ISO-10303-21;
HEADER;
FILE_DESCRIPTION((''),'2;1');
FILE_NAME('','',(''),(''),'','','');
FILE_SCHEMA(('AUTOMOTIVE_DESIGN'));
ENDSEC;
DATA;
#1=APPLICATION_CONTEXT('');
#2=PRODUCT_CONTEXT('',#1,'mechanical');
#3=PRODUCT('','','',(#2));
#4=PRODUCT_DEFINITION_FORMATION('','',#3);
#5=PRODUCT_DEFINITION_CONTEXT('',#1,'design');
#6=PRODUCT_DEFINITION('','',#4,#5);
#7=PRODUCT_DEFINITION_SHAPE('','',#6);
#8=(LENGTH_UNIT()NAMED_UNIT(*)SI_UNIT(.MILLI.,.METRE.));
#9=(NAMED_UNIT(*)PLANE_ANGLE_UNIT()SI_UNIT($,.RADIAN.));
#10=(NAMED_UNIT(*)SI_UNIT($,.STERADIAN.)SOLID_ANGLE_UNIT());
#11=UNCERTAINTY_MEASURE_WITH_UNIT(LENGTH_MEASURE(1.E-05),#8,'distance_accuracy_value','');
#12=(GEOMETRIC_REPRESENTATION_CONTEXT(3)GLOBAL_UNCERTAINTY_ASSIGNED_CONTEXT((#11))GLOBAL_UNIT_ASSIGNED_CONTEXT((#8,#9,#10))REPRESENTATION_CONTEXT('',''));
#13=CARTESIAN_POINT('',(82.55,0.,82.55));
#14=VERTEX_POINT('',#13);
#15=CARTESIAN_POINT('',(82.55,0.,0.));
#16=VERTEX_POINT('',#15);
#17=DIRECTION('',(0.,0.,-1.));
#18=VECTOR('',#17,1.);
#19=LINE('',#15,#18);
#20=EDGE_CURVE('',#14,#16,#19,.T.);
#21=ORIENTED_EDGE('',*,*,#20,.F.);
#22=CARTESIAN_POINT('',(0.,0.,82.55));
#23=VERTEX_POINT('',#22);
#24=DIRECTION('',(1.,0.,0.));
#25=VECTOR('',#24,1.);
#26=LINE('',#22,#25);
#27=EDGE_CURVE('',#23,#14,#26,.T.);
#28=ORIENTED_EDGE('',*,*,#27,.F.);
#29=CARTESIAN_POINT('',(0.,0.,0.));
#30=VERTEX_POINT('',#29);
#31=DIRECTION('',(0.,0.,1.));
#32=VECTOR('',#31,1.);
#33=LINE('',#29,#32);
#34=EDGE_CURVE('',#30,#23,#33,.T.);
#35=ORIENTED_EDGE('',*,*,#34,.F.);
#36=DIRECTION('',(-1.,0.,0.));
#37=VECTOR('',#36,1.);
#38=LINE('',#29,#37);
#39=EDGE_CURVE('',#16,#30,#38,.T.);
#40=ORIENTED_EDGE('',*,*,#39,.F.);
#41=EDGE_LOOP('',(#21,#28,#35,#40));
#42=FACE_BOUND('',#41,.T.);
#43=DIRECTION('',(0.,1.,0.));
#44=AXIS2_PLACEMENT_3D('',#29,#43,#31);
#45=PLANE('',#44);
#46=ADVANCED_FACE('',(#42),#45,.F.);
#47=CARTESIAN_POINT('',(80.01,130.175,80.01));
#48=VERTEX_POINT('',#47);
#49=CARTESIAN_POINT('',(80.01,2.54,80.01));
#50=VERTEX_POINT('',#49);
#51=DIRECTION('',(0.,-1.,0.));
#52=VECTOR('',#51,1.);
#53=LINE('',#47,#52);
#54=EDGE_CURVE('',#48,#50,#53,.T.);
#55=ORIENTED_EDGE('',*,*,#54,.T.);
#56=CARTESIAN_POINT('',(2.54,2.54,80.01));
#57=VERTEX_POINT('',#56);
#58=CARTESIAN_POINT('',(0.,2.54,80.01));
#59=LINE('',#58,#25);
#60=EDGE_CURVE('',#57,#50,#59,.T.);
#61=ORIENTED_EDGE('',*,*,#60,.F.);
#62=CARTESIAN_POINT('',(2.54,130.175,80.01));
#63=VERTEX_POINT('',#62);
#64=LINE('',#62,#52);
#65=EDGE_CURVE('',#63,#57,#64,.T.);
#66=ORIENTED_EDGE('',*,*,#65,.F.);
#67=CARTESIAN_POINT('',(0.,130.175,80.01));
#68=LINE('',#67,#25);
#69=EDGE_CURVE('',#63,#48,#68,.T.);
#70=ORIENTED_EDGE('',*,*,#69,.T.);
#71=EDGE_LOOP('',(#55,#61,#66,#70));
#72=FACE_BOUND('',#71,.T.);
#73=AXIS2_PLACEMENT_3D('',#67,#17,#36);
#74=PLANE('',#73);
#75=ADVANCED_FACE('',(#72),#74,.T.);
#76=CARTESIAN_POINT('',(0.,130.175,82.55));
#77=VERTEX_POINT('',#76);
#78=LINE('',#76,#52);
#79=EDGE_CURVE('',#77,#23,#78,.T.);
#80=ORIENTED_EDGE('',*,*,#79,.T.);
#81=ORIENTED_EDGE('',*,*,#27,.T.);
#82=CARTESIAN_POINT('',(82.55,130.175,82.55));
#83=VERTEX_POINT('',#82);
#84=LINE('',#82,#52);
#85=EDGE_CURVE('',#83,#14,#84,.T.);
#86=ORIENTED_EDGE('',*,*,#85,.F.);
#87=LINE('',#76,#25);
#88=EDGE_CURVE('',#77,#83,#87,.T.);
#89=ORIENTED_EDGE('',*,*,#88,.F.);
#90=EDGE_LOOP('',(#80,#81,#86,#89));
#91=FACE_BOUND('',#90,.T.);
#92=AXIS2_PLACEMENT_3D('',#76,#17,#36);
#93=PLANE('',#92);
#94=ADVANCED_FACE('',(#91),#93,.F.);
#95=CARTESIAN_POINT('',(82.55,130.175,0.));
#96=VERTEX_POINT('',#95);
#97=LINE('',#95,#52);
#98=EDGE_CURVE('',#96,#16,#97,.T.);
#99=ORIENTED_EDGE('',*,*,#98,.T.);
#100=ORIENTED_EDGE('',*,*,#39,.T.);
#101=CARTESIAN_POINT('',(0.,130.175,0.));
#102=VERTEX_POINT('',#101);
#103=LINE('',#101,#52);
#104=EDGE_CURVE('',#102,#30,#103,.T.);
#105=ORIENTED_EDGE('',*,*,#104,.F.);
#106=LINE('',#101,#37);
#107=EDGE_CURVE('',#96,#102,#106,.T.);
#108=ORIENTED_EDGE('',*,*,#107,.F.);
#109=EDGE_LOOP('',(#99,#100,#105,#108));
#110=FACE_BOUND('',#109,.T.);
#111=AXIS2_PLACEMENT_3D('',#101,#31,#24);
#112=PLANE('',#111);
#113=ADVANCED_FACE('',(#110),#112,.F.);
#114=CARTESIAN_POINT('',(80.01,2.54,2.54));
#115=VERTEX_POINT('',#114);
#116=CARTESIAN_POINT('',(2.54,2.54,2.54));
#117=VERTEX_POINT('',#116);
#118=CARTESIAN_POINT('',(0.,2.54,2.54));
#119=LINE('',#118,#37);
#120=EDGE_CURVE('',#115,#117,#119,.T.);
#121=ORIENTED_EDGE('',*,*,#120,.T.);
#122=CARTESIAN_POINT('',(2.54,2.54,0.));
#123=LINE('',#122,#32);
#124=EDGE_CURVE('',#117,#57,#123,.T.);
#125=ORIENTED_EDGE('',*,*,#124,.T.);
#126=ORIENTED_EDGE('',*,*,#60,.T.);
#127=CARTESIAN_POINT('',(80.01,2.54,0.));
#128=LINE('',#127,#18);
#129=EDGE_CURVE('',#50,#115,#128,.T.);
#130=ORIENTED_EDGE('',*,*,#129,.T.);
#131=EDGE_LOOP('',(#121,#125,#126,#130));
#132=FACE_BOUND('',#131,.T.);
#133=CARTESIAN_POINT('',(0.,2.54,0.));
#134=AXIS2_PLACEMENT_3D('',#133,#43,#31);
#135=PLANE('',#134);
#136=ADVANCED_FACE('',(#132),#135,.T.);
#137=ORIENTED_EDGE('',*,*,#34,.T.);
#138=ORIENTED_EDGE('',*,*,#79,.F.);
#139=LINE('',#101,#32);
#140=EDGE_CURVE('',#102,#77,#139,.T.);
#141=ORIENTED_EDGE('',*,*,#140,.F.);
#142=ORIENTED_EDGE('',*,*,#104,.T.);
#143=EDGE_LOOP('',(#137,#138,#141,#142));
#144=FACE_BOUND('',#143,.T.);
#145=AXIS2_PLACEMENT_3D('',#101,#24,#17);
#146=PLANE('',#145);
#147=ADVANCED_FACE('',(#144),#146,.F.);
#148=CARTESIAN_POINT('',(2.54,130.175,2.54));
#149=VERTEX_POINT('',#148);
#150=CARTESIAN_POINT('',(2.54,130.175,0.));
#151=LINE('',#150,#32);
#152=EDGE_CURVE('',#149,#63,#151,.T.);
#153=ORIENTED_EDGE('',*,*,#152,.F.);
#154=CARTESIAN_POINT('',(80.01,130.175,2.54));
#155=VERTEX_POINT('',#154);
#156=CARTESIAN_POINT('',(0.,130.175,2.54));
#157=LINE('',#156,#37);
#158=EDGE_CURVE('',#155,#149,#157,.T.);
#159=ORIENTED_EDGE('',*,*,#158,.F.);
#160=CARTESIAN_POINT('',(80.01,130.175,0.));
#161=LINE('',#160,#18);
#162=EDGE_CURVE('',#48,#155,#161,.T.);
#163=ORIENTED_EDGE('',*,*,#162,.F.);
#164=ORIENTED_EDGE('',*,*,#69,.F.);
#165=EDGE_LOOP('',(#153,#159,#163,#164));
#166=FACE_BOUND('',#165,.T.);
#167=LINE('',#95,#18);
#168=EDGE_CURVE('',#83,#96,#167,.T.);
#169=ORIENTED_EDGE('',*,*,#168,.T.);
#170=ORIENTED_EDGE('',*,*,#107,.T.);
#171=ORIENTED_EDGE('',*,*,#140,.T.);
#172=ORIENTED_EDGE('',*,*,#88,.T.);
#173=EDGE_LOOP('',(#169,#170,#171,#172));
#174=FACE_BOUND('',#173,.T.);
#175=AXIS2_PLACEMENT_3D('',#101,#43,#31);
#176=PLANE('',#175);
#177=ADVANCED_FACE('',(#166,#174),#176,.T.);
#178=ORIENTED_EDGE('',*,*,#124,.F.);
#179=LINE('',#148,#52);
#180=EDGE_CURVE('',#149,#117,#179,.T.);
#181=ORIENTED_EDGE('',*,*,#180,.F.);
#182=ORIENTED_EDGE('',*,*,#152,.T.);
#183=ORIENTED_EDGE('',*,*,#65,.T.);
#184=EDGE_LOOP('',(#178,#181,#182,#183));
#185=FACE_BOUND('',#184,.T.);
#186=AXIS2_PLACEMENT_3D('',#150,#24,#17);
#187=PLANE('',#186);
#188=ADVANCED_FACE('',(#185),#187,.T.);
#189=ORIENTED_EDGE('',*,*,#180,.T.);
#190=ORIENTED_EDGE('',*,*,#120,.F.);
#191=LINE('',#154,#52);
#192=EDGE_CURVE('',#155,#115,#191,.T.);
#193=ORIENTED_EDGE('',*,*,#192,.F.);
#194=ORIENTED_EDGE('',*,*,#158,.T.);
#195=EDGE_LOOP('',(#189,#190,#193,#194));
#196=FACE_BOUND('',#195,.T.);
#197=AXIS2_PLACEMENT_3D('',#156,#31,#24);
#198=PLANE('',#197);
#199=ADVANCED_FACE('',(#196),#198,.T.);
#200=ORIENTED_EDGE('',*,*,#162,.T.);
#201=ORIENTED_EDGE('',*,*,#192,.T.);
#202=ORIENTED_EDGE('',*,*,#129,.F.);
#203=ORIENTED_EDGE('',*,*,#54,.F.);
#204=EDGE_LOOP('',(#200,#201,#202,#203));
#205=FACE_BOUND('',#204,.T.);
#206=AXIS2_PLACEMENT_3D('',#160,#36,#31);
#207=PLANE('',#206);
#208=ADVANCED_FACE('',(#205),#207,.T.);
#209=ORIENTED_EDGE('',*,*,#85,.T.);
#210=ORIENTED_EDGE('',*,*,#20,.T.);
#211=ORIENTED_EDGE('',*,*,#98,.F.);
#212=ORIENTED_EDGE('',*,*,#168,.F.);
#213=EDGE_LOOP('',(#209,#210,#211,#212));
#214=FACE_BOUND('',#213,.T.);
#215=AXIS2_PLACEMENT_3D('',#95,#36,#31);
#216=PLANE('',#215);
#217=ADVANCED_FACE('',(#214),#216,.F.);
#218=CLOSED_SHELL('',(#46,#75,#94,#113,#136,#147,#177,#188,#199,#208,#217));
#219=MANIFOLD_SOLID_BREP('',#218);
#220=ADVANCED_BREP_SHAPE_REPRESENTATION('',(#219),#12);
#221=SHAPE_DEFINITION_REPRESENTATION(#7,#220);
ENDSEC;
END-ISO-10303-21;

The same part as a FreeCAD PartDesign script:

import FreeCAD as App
import Part
import Sketcher
Q = App.Units.Quantity


def faces_at(feature, points):
    """Names of the faces that lie closest to the given points."""
    faces = feature.Shape.Faces
    near = lambda p: min(range(len(faces)), key=lambda i: faces[i].distToShape(Part.Vertex(*p))[0])
    return sorted({f"Face{near(p) + 1}" for p in points})

doc = App.newDocument("Part")
body = doc.addObject("PartDesign::Body", "Body")

# Sketch on XZ plane
sketch1 = body.newObject("Sketcher::SketchObject", "Sketch")
sketch1.AttachmentSupport = (doc.getObject("XZ_Plane"), [""])
sketch1.MapMode = "FlatFace"
sketch1.addGeometry([
    Part.LineSegment(App.Vector(0, 0, 0), App.Vector(0, 83, 0)),
    Part.LineSegment(App.Vector(0, 83, 0), App.Vector(83, 83, 0)),
    Part.LineSegment(App.Vector(83, 83, 0), App.Vector(83, 0, 0)),
    Part.LineSegment(App.Vector(83, 0, 0), App.Vector(0, 0, 0)),
], False)
sketch1.addConstraint([
    Sketcher.Constraint("Coincident", 0, 2, 1, 1),
    Sketcher.Constraint("Coincident", 1, 2, 2, 1),
    Sketcher.Constraint("Coincident", 2, 2, 3, 1),
    Sketcher.Constraint("Coincident", 3, 2, 0, 1),
    Sketcher.Constraint("Vertical", 0),
    Sketcher.Constraint("Horizontal", 1),
    Sketcher.Constraint("Vertical", 2),
    Sketcher.Constraint("Horizontal", 3),
    Sketcher.Constraint("Coincident", 3, 2, -1, 1),
    Sketcher.Constraint("Equal", 3, 0),
    Sketcher.Constraint("DistanceX", 1, 1, 1, 2, Q("3.25 in")),
])
pad1 = body.newObject("PartDesign::Pad", "Pad")
pad1.Profile = sketch1
pad1.Length = Q("5.125 in")
pad1.Reversed = True
doc.recompute()

thickness = body.newObject("PartDesign::Thickness", "Thickness")
thickness.Base = (pad1, faces_at(pad1, [(41.275, 130.175, 41.275)]))
thickness.Value = Q("0.1 in")
thickness.Reversed = True
thickness.Join = "Intersection"

doc.recompute()
